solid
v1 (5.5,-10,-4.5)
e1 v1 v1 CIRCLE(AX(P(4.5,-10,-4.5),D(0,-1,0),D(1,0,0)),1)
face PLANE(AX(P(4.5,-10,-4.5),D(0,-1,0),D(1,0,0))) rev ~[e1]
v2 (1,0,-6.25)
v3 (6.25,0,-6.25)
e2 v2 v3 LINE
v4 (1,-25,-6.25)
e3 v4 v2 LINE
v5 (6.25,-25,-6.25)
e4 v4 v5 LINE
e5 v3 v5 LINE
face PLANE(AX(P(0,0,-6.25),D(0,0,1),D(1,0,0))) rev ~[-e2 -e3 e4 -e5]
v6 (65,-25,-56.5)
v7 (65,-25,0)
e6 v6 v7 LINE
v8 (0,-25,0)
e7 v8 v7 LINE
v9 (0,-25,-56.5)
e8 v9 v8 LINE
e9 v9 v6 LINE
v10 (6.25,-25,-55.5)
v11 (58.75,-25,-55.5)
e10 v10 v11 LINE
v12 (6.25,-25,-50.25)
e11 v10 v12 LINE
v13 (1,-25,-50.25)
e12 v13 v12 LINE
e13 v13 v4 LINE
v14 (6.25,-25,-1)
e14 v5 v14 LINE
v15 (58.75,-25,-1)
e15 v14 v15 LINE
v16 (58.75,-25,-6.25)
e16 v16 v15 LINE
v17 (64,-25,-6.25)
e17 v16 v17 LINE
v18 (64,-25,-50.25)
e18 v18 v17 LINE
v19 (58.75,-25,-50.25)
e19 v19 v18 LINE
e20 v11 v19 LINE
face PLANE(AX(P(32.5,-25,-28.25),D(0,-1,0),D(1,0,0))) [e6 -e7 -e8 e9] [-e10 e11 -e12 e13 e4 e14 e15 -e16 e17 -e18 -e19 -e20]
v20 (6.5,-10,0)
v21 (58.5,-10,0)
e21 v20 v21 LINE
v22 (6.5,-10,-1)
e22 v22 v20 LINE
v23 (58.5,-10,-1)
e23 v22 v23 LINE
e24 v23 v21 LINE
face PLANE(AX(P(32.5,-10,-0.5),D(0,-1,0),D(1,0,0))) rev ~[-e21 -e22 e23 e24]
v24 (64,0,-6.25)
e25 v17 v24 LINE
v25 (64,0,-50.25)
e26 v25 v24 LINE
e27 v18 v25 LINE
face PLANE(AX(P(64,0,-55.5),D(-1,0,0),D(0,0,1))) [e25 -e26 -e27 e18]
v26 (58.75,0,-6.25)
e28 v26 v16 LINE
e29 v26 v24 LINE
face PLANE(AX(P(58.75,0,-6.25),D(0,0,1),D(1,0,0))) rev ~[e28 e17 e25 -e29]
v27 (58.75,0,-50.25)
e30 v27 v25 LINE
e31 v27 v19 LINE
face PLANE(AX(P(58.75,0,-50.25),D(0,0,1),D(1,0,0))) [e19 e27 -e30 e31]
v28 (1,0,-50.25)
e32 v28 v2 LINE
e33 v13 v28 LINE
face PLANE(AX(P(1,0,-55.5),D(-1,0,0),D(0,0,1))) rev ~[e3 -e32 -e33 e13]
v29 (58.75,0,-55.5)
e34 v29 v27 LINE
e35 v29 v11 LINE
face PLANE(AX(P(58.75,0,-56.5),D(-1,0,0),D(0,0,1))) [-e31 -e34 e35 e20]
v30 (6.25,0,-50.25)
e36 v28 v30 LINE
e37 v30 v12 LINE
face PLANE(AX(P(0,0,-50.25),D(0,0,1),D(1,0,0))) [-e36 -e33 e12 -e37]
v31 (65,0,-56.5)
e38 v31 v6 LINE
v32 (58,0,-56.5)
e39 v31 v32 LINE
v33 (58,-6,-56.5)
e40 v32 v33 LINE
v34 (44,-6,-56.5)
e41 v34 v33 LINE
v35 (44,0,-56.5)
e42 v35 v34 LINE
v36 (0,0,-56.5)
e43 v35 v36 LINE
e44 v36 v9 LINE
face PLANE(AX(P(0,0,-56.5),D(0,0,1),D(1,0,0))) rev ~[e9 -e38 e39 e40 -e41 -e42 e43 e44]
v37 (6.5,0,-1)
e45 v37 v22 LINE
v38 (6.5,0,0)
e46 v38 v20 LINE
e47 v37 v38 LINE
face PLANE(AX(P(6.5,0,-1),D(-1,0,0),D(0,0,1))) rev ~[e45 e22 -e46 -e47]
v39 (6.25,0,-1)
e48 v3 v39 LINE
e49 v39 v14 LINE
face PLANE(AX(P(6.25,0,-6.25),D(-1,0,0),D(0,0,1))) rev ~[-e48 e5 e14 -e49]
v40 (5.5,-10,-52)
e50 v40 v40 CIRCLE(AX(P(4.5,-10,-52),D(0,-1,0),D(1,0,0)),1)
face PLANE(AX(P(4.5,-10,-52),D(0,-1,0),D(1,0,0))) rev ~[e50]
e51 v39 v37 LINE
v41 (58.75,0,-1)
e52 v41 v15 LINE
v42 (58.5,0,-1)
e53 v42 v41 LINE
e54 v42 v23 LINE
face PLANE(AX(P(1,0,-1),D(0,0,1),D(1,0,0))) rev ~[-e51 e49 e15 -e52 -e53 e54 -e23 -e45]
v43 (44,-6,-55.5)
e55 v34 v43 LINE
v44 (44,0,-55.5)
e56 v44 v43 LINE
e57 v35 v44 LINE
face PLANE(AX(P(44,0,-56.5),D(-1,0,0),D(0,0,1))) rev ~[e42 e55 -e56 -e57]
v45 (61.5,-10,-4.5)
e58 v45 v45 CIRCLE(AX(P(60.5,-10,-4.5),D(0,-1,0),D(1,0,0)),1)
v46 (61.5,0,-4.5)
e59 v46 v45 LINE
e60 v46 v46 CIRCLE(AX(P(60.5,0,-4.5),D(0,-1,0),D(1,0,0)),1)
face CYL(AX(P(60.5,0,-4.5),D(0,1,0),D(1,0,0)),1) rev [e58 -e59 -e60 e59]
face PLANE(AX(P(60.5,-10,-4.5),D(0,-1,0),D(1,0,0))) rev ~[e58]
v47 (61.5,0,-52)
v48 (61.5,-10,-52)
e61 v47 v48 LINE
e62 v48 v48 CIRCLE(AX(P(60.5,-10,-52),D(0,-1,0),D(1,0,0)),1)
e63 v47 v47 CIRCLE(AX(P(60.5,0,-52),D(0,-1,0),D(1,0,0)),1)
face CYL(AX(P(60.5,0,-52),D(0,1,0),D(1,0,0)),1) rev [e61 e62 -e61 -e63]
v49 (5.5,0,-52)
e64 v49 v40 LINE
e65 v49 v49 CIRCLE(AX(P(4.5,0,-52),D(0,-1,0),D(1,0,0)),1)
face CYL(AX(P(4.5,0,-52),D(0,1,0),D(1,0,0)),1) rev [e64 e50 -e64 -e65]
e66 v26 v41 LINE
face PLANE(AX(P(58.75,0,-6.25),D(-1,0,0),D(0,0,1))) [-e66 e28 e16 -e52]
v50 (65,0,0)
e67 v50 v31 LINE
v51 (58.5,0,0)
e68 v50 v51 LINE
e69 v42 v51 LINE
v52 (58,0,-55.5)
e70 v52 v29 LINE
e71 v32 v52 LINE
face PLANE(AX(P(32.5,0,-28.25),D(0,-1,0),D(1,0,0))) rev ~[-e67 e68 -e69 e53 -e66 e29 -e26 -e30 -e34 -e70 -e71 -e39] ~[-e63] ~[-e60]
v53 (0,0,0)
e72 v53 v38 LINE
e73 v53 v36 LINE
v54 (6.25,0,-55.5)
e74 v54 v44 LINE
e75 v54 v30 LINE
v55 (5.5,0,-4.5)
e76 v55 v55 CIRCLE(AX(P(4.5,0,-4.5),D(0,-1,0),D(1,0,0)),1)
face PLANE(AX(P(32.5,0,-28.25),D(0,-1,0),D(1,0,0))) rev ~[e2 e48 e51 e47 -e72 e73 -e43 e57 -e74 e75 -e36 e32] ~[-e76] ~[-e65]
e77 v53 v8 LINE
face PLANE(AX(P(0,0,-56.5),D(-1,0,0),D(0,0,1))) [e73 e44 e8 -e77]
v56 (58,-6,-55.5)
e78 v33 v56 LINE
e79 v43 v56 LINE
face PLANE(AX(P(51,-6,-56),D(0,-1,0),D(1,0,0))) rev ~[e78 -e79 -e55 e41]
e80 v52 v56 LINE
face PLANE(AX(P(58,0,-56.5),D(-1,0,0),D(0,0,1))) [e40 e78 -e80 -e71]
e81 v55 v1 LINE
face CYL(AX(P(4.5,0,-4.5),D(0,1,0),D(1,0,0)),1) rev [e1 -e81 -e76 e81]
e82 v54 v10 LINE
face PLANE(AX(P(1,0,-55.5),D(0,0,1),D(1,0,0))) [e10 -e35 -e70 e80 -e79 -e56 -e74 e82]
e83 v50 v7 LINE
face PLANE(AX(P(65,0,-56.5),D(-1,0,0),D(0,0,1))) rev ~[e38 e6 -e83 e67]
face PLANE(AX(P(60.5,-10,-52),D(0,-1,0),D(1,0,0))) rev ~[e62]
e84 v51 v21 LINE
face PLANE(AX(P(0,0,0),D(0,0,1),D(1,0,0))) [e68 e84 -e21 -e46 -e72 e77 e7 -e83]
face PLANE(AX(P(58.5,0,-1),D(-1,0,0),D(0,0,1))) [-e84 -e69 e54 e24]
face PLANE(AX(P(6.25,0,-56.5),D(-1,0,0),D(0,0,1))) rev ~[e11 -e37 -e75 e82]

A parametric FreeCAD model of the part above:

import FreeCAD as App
import Part
import Sketcher
Q = App.Units.Quantity

doc = App.newDocument("Part")
body = doc.addObject("PartDesign::Body", "Body")

# Sketch on XZ plane
sketch1 = doc.addObject("Sketcher::SketchObject", "Sketch")
body.addObject(sketch1)
sketch1.AttachmentSupport = (doc.XZ_Plane, [""])
sketch1.MapMode = "FlatFace"
sketch1.addGeometry(Part.LineSegment(App.Vector(0, 0, 0), App.Vector(0, -56, 0)), False)
sketch1.addGeometry(Part.LineSegment(App.Vector(0, -56, 0), App.Vector(65, -56, 0)), False)
sketch1.addGeometry(Part.LineSegment(App.Vector(65, -56, 0), App.Vector(65, 0, 0)), False)
sketch1.addGeometry(Part.LineSegment(App.Vector(65, 0, 0), App.Vector(0, 0, 0)), False)
sketch1.addGeometry(Part.LineSegment(App.Vector(64, -56, 0), App.Vector(1, -56, 0)), False)
sketch1.addGeometry(Part.LineSegment(App.Vector(1, -56, 0), App.Vector(1, -1, 0)), False)
sketch1.addGeometry(Part.LineSegment(App.Vector(1, -1, 0), App.Vector(64, -1, 0)), False)
sketch1.addGeometry(Part.LineSegment(App.Vector(64, -1, 0), App.Vector(64, -56, 0)), False)
sketch1.addConstraint(Sketcher.Constraint("Coincident", 0, 2, 1, 1))
sketch1.addConstraint(Sketcher.Constraint("Coincident", 1, 2, 2, 1))
sketch1.addConstraint(Sketcher.Constraint("Coincident", 2, 2, 3, 1))
sketch1.addConstraint(Sketcher.Constraint("Coincident", 3, 2, 0, 1))
sketch1.addConstraint(Sketcher.Constraint("Coincident", 4, 2, 5, 1))
sketch1.addConstraint(Sketcher.Constraint("Coincident", 5, 2, 6, 1))
sketch1.addConstraint(Sketcher.Constraint("Coincident", 6, 2, 7, 1))
sketch1.addConstraint(Sketcher.Constraint("Coincident", 7, 2, 4, 1))
sketch1.addConstraint(Sketcher.Constraint("Vertical", 0))
sketch1.addConstraint(Sketcher.Constraint("Horizontal", 1))
sketch1.addConstraint(Sketcher.Constraint("Vertical", 2))
sketch1.addConstraint(Sketcher.Constraint("Horizontal", 3))
sketch1.addConstraint(Sketcher.Constraint("Horizontal", 4))
sketch1.addConstraint(Sketcher.Constraint("Vertical", 5))
sketch1.addConstraint(Sketcher.Constraint("Horizontal", 6))
sketch1.addConstraint(Sketcher.Constraint("Vertical", 7))
sketch1.addConstraint(Sketcher.Constraint("Coincident", 3, 2, -1, 1))
sketch1.addConstraint(Sketcher.Constraint("DistanceX", 1, 1, 1, 2, Q("65 mm")))
sketch1.addConstraint(Sketcher.Constraint("DistanceX", 4, 2, 4, 1, Q("63 mm")))
sketch1.addConstraint(Sketcher.Constraint("DistanceY", 0, 2, 0, 1, Q("56.5 mm")))
sketch1.addConstraint(Sketcher.Constraint("DistanceY", 5, 1, 5, 2, Q("54.5 mm")))
sketch1.addConstraint(Sketcher.Constraint("DistanceX", -1, 1, 4, 2, Q("1 mm")))
sketch1.addConstraint(Sketcher.Constraint("DistanceY", 5, 2, -1, 1, Q("1 mm")))
pad1 = doc.addObject("PartDesign::Pad", "Pad")
body.addObject(pad1)
pad1.Profile = sketch1
pad1.Length = 25

# Sketch on XZ plane
sketch2 = doc.addObject("Sketcher::SketchObject", "Sketch001")
body.addObject(sketch2)
sketch2.AttachmentSupport = (doc.XZ_Plane, [""])
sketch2.MapMode = "FlatFace"
sketch2.addGeometry(Part.LineSegment(App.Vector(6.5, 0, 0), App.Vector(6.5, -1, 0)), False)
sketch2.addGeometry(Part.LineSegment(App.Vector(6.5, -1, 0), App.Vector(58.5, -1, 0)), False)
sketch2.addGeometry(Part.LineSegment(App.Vector(58.5, -1, 0), App.Vector(58.5, 0, 0)), False)
sketch2.addGeometry(Part.LineSegment(App.Vector(58.5, 0, 0), App.Vector(6.5, 0, 0)), False)
sketch2.addConstraint(Sketcher.Constraint("Coincident", 0, 2, 1, 1))
sketch2.addConstraint(Sketcher.Constraint("Coincident", 1, 2, 2, 1))
sketch2.addConstraint(Sketcher.Constraint("Coincident", 2, 2, 3, 1))
sketch2.addConstraint(Sketcher.Constraint("Coincident", 3, 2, 0, 1))
sketch2.addConstraint(Sketcher.Constraint("Vertical", 0))
sketch2.addConstraint(Sketcher.Constraint("Horizontal", 1))
sketch2.addConstraint(Sketcher.Constraint("Vertical", 2))
sketch2.addConstraint(Sketcher.Constraint("Horizontal", 3))
sketch2.addConstraint(Sketcher.Constraint("PointOnObject", 2, 2, -1))
sketch2.addConstraint(Sketcher.Constraint("DistanceX", 1, 1, 1, 2, Q("52 mm")))
sketch2.addConstraint(Sketcher.Constraint("DistanceY", 0, 2, 0, 1, Q("1 mm")))
sketch2.addConstraint(Sketcher.Constraint("DistanceX", -1, 1, 0, 2, Q("6.5 mm")))
pocket1 = doc.addObject("PartDesign::Pocket", "Pocket")
body.addObject(pocket1)
pocket1.Profile = sketch2
pocket1.Length = 10
pocket1.Reversed = True

# Sketch on XZ plane
sketch3 = doc.addObject("Sketcher::SketchObject", "Sketch002")
body.addObject(sketch3)
sketch3.AttachmentSupport = (doc.XZ_Plane, [""])
sketch3.MapMode = "FlatFace"
sketch3.addGeometry(Part.LineSegment(App.Vector(44, -55.5, 0), App.Vector(44, -56.5, 0)), False)
sketch3.addGeometry(Part.LineSegment(App.Vector(44, -56.5, 0), App.Vector(58, -56.5, 0)), False)
sketch3.addGeometry(Part.LineSegment(App.Vector(58, -56.5, 0), App.Vector(58, -55.5, 0)), False)
sketch3.addGeometry(Part.LineSegment(App.Vector(58, -55.5, 0), App.Vector(44, -55.5, 0)), False)
sketch3.addConstraint(Sketcher.Constraint("Coincident", 0, 2, 1, 1))
sketch3.addConstraint(Sketcher.Constraint("Coincident", 1, 2, 2, 1))
sketch3.addConstraint(Sketcher.Constraint("Coincident", 2, 2, 3, 1))
sketch3.addConstraint(Sketcher.Constraint("Coincident", 3, 2, 0, 1))
sketch3.addConstraint(Sketcher.Constraint("Vertical", 0))
sketch3.addConstraint(Sketcher.Constraint("Horizontal", 1))
sketch3.addConstraint(Sketcher.Constraint("Vertical", 2))
sketch3.addConstraint(Sketcher.Constraint("Horizontal", 3))
sketch3.addConstraint(Sketcher.Constraint("DistanceX", 1, 1, 1, 2, Q("14 mm")))
sketch3.addConstraint(Sketcher.Constraint("DistanceY", 0, 2, 0, 1, Q("1 mm")))
sketch3.addConstraint(Sketcher.Constraint("DistanceX", -1, 1, 0, 2, Q("44 mm")))
sketch3.addConstraint(Sketcher.Constraint("DistanceY", 0, 2, -1, 1, Q("56.5 mm")))
pocket2 = doc.addObject("PartDesign::Pocket", "Pocket001")
body.addObject(pocket2)
pocket2.Profile = sketch3
pocket2.Length = 6
pocket2.Reversed = True

# Sketch on XZ plane
sketch4 = doc.addObject("Sketcher::SketchObject", "Sketch003")
body.addObject(sketch4)
sketch4.AttachmentSupport = (doc.XZ_Plane, [""])
sketch4.MapMode = "FlatFace"
sketch4.addGeometry(Part.LineSegment(App.Vector(0, 0, 0), App.Vector(0, -6, 0)), False)
sketch4.addGeometry(Part.LineSegment(App.Vector(0, -6, 0), App.Vector(6, -6, 0)), False)
sketch4.addGeometry(Part.LineSegment(App.Vector(6, -6, 0), App.Vector(6, 0, 0)), False)
sketch4.addGeometry(Part.LineSegment(App.Vector(6, 0, 0), App.Vector(0, 0, 0)), False)
sketch4.addGeometry(Part.LineSegment(App.Vector(0, -50, 0), App.Vector(0, -56, 0)), False)
sketch4.addGeometry(Part.LineSegment(App.Vector(0, -56, 0), App.Vector(6, -56, 0)), False)
sketch4.addGeometry(Part.LineSegment(App.Vector(6, -56, 0), App.Vector(6, -50, 0)), False)
sketch4.addGeometry(Part.LineSegment(App.Vector(6, -50, 0), App.Vector(0, -50, 0)), False)
sketch4.addGeometry(Part.LineSegment(App.Vector(59, -50, 0), App.Vector(59, -56, 0)), False)
sketch4.addGeometry(Part.LineSegment(App.Vector(59, -56, 0), App.Vector(65, -56, 0)), False)
sketch4.addGeometry(Part.LineSegment(App.Vector(65, -56, 0), App.Vector(65, -50, 0)), False)
sketch4.addGeometry(Part.LineSegment(App.Vector(65, -50, 0), App.Vector(59, -50, 0)), False)
sketch4.addGeometry(Part.LineSegment(App.Vector(59, 0, 0), App.Vector(59, -6, 0)), False)
sketch4.addGeometry(Part.LineSegment(App.Vector(59, -6, 0), App.Vector(65, -6, 0)), False)
sketch4.addGeometry(Part.LineSegment(App.Vector(65, -6, 0), App.Vector(65, 0, 0)), False)
sketch4.addGeometry(Part.LineSegment(App.Vector(65, 0, 0), App.Vector(59, 0, 0)), False)
sketch4.addConstraint(Sketcher.Constraint("Coincident", 0, 2, 1, 1))
sketch4.addConstraint(Sketcher.Constraint("Coincident", 1, 2, 2, 1))
sketch4.addConstraint(Sketcher.Constraint("Coincident", 2, 2, 3, 1))
sketch4.addConstraint(Sketcher.Constraint("Coincident", 3, 2, 0, 1))
sketch4.addConstraint(Sketcher.Constraint("Coincident", 4, 2, 5, 1))
sketch4.addConstraint(Sketcher.Constraint("Coincident", 5, 2, 6, 1))
sketch4.addConstraint(Sketcher.Constraint("Coincident", 6, 2, 7, 1))
sketch4.addConstraint(Sketcher.Constraint("Coincident", 7, 2, 4, 1))
sketch4.addConstraint(Sketcher.Constraint("Coincident", 8, 2, 9, 1))
sketch4.addConstraint(Sketcher.Constraint("Coincident", 9, 2, 10, 1))
sketch4.addConstraint(Sketcher.Constraint("Coincident", 10, 2, 11, 1))
sketch4.addConstraint(Sketcher.Constraint("Coincident", 11, 2, 8, 1))
sketch4.addConstraint(Sketcher.Constraint("Coincident", 12, 2, 13, 1))
sketch4.addConstraint(Sketcher.Constraint("Coincident", 13, 2, 14, 1))
sketch4.addConstraint(Sketcher.Constraint("Coincident", 14, 2, 15, 1))
sketch4.addConstraint(Sketcher.Constraint("Coincident", 15, 2, 12, 1))
sketch4.addConstraint(Sketcher.Constraint("Vertical", 0))
sketch4.addConstraint(Sketcher.Constraint("Horizontal", 1))
sketch4.addConstraint(Sketcher.Constraint("Vertical", 2))
sketch4.addConstraint(Sketcher.Constraint("Horizontal", 3))
sketch4.addConstraint(Sketcher.Constraint("Vertical", 4))
sketch4.addConstraint(Sketcher.Constraint("Horizontal", 5))
sketch4.addConstraint(Sketcher.Constraint("Vertical", 6))
sketch4.addConstraint(Sketcher.Constraint("Horizontal", 7))
sketch4.addConstraint(Sketcher.Constraint("Vertical", 8))
sketch4.addConstraint(Sketcher.Constraint("Horizontal", 9))
sketch4.addConstraint(Sketcher.Constraint("Vertical", 10))
sketch4.addConstraint(Sketcher.Constraint("Horizontal", 11))
sketch4.addConstraint(Sketcher.Constraint("Vertical", 12))
sketch4.addConstraint(Sketcher.Constraint("Horizontal", 13))
sketch4.addConstraint(Sketcher.Constraint("Vertical", 14))
sketch4.addConstraint(Sketcher.Constraint("Horizontal", 15))
sketch4.addConstraint(Sketcher.Constraint("Coincident", 3, 2, -1, 1))
sketch4.addConstraint(Sketcher.Constraint("PointOnObject", 4, 2, -2))
sketch4.addConstraint(Sketcher.Constraint("PointOnObject", 14, 2, -1))
sketch4.addConstraint(Sketcher.Constraint("Horizontal", 5, 2, 8, 2))
sketch4.addConstraint(Sketcher.Constraint("Horizontal", 7, 2, 10, 2))
sketch4.addConstraint(Sketcher.Constraint("Horizontal", 1, 2, 12, 2))
sketch4.addConstraint(Sketcher.Constraint("Vertical", 2, 2, 5, 2))
sketch4.addConstraint(Sketcher.Constraint("Vertical", 11, 2, 12, 2))
sketch4.addConstraint(Sketcher.Constraint("Vertical", 10, 2, 13, 2))
sketch4.addConstraint(Sketcher.Constraint("Equal", 7, 9))
sketch4.addConstraint(Sketcher.Constraint("Equal", 15, 0))
sketch4.addConstraint(Sketcher.Constraint("Equal", 2, 4))
sketch4.addConstraint(Sketcher.Constraint("DistanceX", -1, 1, 9, 2, Q("65 mm")))
sketch4.addConstraint(Sketcher.Constraint("DistanceY", 6, 2, 1, 2, Q("44 mm")))
sketch4.addConstraint(Sketcher.Constraint("DistanceX", 1, 1, 1, 2, Q("6.25 mm")))
pad2 = doc.addObject("PartDesign::Pad", "Pad001")
body.addObject(pad2)
pad2.Profile = sketch4
pad2.Length = 25

# Sketch on XZ plane
sketch5 = doc.addObject("Sketcher::SketchObject", "Sketch004")
body.addObject(sketch5)
sketch5.AttachmentSupport = (doc.XZ_Plane, [""])
sketch5.MapMode = "FlatFace"
sketch5.addGeometry(Part.Circle(App.Vector(4.5, -52, 0), App.Vector(0, 0, 1), 1), False)
sketch5.addGeometry(Part.Circle(App.Vector(4.5, -4.5, 0), App.Vector(0, 0, 1), 1), False)
sketch5.addGeometry(Part.Circle(App.Vector(60.5, -4.5, 0), App.Vector(0, 0, 1), 1), False)
sketch5.addGeometry(Part.Circle(App.Vector(60.5, -52, 0), App.Vector(0, 0, 1), 1), False)
sketch5.addConstraint(Sketcher.Constraint("Equal", 0, 1))
sketch5.addConstraint(Sketcher.Constraint("Equal", 1, 2))
sketch5.addConstraint(Sketcher.Constraint("Equal", 2, 3))
sketch5.addConstraint(Sketcher.Constraint("Horizontal", 1, 3, 2, 3))
sketch5.addConstraint(Sketcher.Constraint("Horizontal", 0, 3, 3, 3))
sketch5.addConstraint(Sketcher.Constraint("Vertical", 0, 3, 1, 3))
sketch5.addConstraint(Sketcher.Constraint("Vertical", 2, 3, 3, 3))
sketch5.addConstraint(Sketcher.Constraint("Diameter", 0, Q("2 mm")))
sketch5.addConstraint(Sketcher.Constraint("DistanceY", 0, 3, -1, 1, Q("52 mm")))
sketch5.addConstraint(Sketcher.Constraint("DistanceX", 1, 3, 2, 3, Q("56 mm")))
sketch5.addConstraint(Sketcher.Constraint("DistanceX", -1, 1, 0, 3, Q("4.5 mm")))
sketch5.addConstraint(Sketcher.Constraint("DistanceY", 1, 3, -1, 1, Q("4.5 mm")))
pocket3 = doc.addObject("PartDesign::Pocket", "Pocket002")
body.addObject(pocket3)
pocket3.Profile = sketch5
pocket3.Length = 10
pocket3.Reversed = True

doc.recompute()
